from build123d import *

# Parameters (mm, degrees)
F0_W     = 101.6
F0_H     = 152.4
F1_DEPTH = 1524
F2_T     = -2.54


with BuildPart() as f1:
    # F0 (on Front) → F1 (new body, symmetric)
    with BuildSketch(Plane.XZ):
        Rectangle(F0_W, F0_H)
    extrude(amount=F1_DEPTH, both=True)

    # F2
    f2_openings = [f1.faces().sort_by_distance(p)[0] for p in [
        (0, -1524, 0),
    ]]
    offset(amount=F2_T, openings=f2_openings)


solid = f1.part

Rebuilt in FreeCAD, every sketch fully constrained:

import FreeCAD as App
import Part
import Sketcher

V = App.Vector
Q = App.Units.Quantity


def faces_at(feature, points):
    """Names of the faces that lie closest to the given points."""
    faces = feature.Shape.Faces
    near = lambda p: min(range(len(faces)), key=lambda i: faces[i].distToShape(Part.Vertex(*p))[0])
    return sorted({f"Face{near(p) + 1}" for p in points})


def add_polygon(sketch, points):
    """Adds a closed chain of lines whose ends are joined by coincident constraints."""
    first, n = sketch.GeometryCount, len(points)
    for a, b in zip(points, points[1:] + points[:1]):
        sketch.addGeometry(Part.LineSegment(App.Vector(*a, 0), App.Vector(*b, 0)), False)
    for i in range(n):
        sketch.addConstraint(Sketcher.Constraint("Coincident", first + i, 2, first + (i + 1) % n, 1))

doc = App.newDocument("Part")
body = doc.addObject("PartDesign::Body", "Body")

sketch1 = body.newObject("Sketcher::SketchObject", "Sketch")
sketch1.AttachmentSupport = (doc.getObject("XZ_Plane"), [""])
sketch1.MapMode = "FlatFace"
add_polygon(sketch1, [(-51, 76), (-51, -76), (51, -76), (51, 76)])
sketch1.addConstraint(Sketcher.Constraint("Vertical", 0))
sketch1.addConstraint(Sketcher.Constraint("Horizontal", 1))
sketch1.addConstraint(Sketcher.Constraint("Vertical", 2))
sketch1.addConstraint(Sketcher.Constraint("Horizontal", 3))
sketch1.addConstraint(Sketcher.Constraint("Symmetric", 0, 2, 2, 2, -1, 1))
sketch1.addConstraint(Sketcher.Constraint("DistanceX", 1, 1, 1, 2, Q("4 in")))
sketch1.addConstraint(Sketcher.Constraint("DistanceY", 0, 2, 0, 1, Q("6 in")))
pad1 = body.newObject("PartDesign::Pad", "Pad")
pad1.Profile = sketch1
pad1.Length = Q("120 in")
pad1.Midplane = True
doc.recompute()

thickness = body.newObject("PartDesign::Thickness", "Thickness")
thickness.Base = (pad1, faces_at(pad1, [(0, -1524, 0)]))
thickness.Value = Q("0.1 in")
thickness.Reversed = True
thickness.Join = "Arc"

doc.recompute()
